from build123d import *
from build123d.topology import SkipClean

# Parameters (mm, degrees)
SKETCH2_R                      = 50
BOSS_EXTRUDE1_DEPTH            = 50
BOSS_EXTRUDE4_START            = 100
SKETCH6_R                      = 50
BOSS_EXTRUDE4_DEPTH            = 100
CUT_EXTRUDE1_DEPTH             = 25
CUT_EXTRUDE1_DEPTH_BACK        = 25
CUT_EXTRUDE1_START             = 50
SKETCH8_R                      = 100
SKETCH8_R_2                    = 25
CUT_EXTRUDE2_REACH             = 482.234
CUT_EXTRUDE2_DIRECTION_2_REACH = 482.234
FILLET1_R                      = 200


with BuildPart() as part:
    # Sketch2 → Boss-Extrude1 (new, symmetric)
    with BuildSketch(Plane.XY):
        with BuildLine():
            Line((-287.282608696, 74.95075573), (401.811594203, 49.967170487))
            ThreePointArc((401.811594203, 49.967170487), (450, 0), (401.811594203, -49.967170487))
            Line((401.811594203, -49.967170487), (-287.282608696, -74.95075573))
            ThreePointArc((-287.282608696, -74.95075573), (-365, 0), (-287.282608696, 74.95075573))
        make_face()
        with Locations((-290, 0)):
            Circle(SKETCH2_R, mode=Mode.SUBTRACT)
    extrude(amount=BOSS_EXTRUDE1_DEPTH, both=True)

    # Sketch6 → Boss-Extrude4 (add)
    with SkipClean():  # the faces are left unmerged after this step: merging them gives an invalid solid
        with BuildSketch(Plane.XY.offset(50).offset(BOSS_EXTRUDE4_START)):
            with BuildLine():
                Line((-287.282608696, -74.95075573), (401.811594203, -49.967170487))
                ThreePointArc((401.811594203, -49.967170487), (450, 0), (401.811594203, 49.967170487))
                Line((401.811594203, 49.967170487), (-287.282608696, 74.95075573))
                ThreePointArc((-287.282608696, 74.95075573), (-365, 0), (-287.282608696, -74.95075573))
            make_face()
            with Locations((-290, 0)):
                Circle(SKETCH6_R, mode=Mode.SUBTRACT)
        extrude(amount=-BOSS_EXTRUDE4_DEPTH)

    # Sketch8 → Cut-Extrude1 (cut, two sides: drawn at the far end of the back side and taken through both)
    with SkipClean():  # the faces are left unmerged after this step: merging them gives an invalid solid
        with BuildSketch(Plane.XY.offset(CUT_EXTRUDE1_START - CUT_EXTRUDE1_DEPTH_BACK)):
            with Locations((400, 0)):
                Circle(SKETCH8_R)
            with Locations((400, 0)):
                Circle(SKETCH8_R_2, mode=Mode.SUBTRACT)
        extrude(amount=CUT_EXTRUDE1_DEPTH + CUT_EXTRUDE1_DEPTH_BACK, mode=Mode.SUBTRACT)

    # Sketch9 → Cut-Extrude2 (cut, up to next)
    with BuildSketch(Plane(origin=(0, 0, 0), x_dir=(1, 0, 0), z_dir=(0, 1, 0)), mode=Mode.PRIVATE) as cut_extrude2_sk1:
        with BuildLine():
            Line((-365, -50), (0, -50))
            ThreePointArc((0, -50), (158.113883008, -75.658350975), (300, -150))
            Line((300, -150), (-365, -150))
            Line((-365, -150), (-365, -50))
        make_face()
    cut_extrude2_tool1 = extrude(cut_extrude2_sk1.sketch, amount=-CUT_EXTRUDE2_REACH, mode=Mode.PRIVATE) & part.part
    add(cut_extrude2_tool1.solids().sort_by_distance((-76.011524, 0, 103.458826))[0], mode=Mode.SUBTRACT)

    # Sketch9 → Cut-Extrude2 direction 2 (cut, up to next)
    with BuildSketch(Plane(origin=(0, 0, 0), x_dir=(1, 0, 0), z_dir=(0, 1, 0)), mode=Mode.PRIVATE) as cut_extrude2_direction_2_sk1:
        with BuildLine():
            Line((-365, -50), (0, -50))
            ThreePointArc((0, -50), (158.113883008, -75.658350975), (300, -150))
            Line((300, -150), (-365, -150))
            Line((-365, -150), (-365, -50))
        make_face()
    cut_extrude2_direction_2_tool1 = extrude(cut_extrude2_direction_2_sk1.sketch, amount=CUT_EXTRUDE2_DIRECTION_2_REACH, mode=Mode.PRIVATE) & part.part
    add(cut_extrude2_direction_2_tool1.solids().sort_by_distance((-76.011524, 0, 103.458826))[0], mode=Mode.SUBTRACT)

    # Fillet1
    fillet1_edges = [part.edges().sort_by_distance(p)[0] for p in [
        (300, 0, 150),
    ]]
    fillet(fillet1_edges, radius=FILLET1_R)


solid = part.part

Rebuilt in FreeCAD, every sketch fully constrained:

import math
import FreeCAD as App
import Part
import Sketcher

V = App.Vector


def edges_at(feature, points):
    """Names of the edges that pass closest to the given points."""
    edges = feature.Shape.Edges
    near = lambda p: min(range(len(edges)), key=lambda i: edges[i].distToShape(Part.Vertex(*p))[0])
    return sorted({f"Edge{near(p) + 1}" for p in points})

doc = App.newDocument("Part")
params = doc.addObject("Spreadsheet::Sheet", "Params")
for row, (alias, value) in enumerate([
    ("sketch1_diameter", "100 mm"),
    ("sketch1_radius", "75 mm"),
    ("pad1_length", "100 mm"),
    ("sketch2_diameter", "100 mm"),
    ("sketch2_radius", "75 mm"),
    ("pad2_length", "100 mm"),
    ("sketch3_diameter", "200 mm"),
    ("sketch3_diameter2", "50 mm"),
    ("pocket1_length", "25 mm"),
    ("pocket1_length2", "25 mm"),
    ("sketch4_radius", "500 mm"),
    ("sketch4_width", "365 mm"),
    ("sketch4_width2", "665 mm"),
    ("sketch5_radius", "500 mm"),
    ("sketch5_width", "365 mm"),
    ("sketch5_width2", "665 mm"),
    ("fillet_radius", "200 mm"),
], start=1):
    params.set(f"A{row}", alias)
    params.set(f"B{row}", "=" + value)
    params.setAlias(f"B{row}", alias)

body = doc.addObject("PartDesign::Body", "Body")

sketch1 = doc.addObject("Sketcher::SketchObject", "Sketch")
body.addObject(sketch1)
sketch1.AttachmentSupport = (doc.XY_Plane, [""])
sketch1.MapMode = "FlatFace"
sketch1.addGeometry(Part.LineSegment(V(402, 50, 0), V(-287, 75, 0)), False)
sketch1.addGeometry(Part.ArcOfCircle(Part.Circle(V(-290, 0, 0), V(0, 0, 1), 75), math.radians(88), math.radians(272)), False)
sketch1.addGeometry(Part.LineSegment(V(-287, -75, 0), V(402, -50, 0)), False)
sketch1.addGeometry(Part.ArcOfCircle(Part.Circle(V(400, 0, 0), V(0, 0, 1), 50), math.radians(-88), math.radians(88)), False)
sketch1.addGeometry(Part.Circle(V(-290, 0, 0), V(0, 0, 1), 50), False)
sketch1.addConstraint(Sketcher.Constraint("Tangent", 0, 2, 1, 1))
sketch1.addConstraint(Sketcher.Constraint("Tangent", 1, 2, 2, 1))
sketch1.addConstraint(Sketcher.Constraint("Tangent", 2, 2, 3, 1))
sketch1.addConstraint(Sketcher.Constraint("Tangent", 3, 2, 0, 1))
sketch1.addConstraint(Sketcher.Constraint("Coincident", 4, 3, 1, 3))
sketch1.addConstraint(Sketcher.Constraint("Equal", 3, 4))
sketch1.addConstraint(Sketcher.Constraint("Symmetric", 0, 2, 1, 2, -1))
sketch1.addConstraint(Sketcher.Constraint("Diameter", 4, 100.0))
sketch1.addConstraint(Sketcher.Constraint("Radius", 1, 75.0))
sketch1.addConstraint(Sketcher.Constraint("DistanceX", 1, 3, -1, 1, 290.0))
sketch1.addConstraint(Sketcher.Constraint("DistanceX", -1, 1, 3, 3, 400.0))
sketch1.setExpression("Constraints[7]", "Params.sketch1_diameter")
sketch1.setExpression("Constraints[8]", "Params.sketch1_radius")
pad1 = doc.addObject("PartDesign::Pad", "Pad")
body.addObject(pad1)
pad1.Profile = sketch1
pad1.setExpression("Length", "Params.pad1_length")
pad1.Midplane = True

sketch2 = doc.addObject("Sketcher::SketchObject", "Sketch001")
body.addObject(sketch2)
sketch2.AttachmentSupport = (doc.XY_Plane, [""])
sketch2.MapMode = "FlatFace"
sketch2.AttachmentOffset = App.Placement(V(0, 0, 150), App.Rotation())
sketch2.addGeometry(Part.LineSegment(V(-287, -75, 0), V(402, -50, 0)), False)
sketch2.addGeometry(Part.ArcOfCircle(Part.Circle(V(400, 0, 0), V(0, 0, 1), 50), math.radians(-88), math.radians(88)), False)
sketch2.addGeometry(Part.LineSegment(V(402, 50, 0), V(-287, 75, 0)), False)
sketch2.addGeometry(Part.ArcOfCircle(Part.Circle(V(-290, 0, 0), V(0, 0, 1), 75), math.radians(88), math.radians(272)), False)
sketch2.addGeometry(Part.Circle(V(-290, 0, 0), V(0, 0, 1), 50), False)
sketch2.addConstraint(Sketcher.Constraint("Tangent", 0, 2, 1, 1))
sketch2.addConstraint(Sketcher.Constraint("Tangent", 1, 2, 2, 1))
sketch2.addConstraint(Sketcher.Constraint("Tangent", 2, 2, 3, 1))
sketch2.addConstraint(Sketcher.Constraint("Tangent", 3, 2, 0, 1))
sketch2.addConstraint(Sketcher.Constraint("Coincident", 4, 3, 3, 3))
sketch2.addConstraint(Sketcher.Constraint("Equal", 1, 4))
sketch2.addConstraint(Sketcher.Constraint("Symmetric", 0, 2, 1, 2, -1))
sketch2.addConstraint(Sketcher.Constraint("Diameter", 4, 100.0))
sketch2.addConstraint(Sketcher.Constraint("Radius", 3, 75.0))
sketch2.addConstraint(Sketcher.Constraint("DistanceX", -1, 1, 1, 3, 400.0))
sketch2.addConstraint(Sketcher.Constraint("DistanceX", 3, 3, -1, 1, 290.0))
sketch2.setExpression("Constraints[7]", "Params.sketch2_diameter")
sketch2.setExpression("Constraints[8]", "Params.sketch2_radius")
pad2 = doc.addObject("PartDesign::Pad", "Pad001")
body.addObject(pad2)
pad2.Profile = sketch2
pad2.setExpression("Length", "Params.pad2_length")
pad2.Reversed = True

sketch3 = doc.addObject("Sketcher::SketchObject", "Sketch002")
body.addObject(sketch3)
sketch3.AttachmentSupport = (doc.XY_Plane, [""])
sketch3.MapMode = "FlatFace"
sketch3.AttachmentOffset = App.Placement(V(0, 0, 50), App.Rotation())
sketch3.addGeometry(Part.Circle(V(400, 0, 0), V(0, 0, 1), 100), False)
sketch3.addGeometry(Part.Circle(V(400, 0, 0), V(0, 0, 1), 25), False)
sketch3.addConstraint(Sketcher.Constraint("Coincident", 1, 3, 0, 3))
sketch3.addConstraint(Sketcher.Constraint("PointOnObject", 0, 3, -1))
sketch3.addConstraint(Sketcher.Constraint("Diameter", 0, 200.0))
sketch3.addConstraint(Sketcher.Constraint("Diameter", 1, 50.0))
sketch3.addConstraint(Sketcher.Constraint("DistanceX", -1, 1, 0, 3, 400.0))
sketch3.setExpression("Constraints[2]", "Params.sketch3_diameter")
sketch3.setExpression("Constraints[3]", "Params.sketch3_diameter2")
pocket1 = doc.addObject("PartDesign::Pocket", "Pocket")
body.addObject(pocket1)
pocket1.Profile = sketch3
pocket1.Type = "TwoLengths"
pocket1.setExpression("Length", "Params.pocket1_length")
pocket1.setExpression("Length2", "Params.pocket1_length2")
pocket1.Reversed = True

sketch4 = doc.addObject("Sketcher::SketchObject", "Sketch003")
body.addObject(sketch4)
sketch4.AttachmentSupport = (doc.XZ_Plane, [""])
sketch4.MapMode = "FlatFace"
sketch4.addGeometry(Part.LineSegment(V(0, 50, 0), V(-365, 50, 0)), False)
sketch4.addGeometry(Part.LineSegment(V(-365, 50, 0), V(-365, 150, 0)), False)
sketch4.addGeometry(Part.LineSegment(V(-365, 150, 0), V(300, 150, 0)), False)
sketch4.addGeometry(Part.ArcOfCircle(Part.Circle(V(0, 550, 0), V(0, 0, 1), 500), math.radians(-90), math.radians(-53)), False)
sketch4.addConstraint(Sketcher.Constraint("Coincident", 0, 2, 1, 1))
sketch4.addConstraint(Sketcher.Constraint("Coincident", 1, 2, 2, 1))
sketch4.addConstraint(Sketcher.Constraint("Coincident", 2, 2, 3, 2))
sketch4.addConstraint(Sketcher.Constraint("Tangent", 3, 1, 0, 1))
sketch4.addConstraint(Sketcher.Constraint("Horizontal", 0))
sketch4.addConstraint(Sketcher.Constraint("Vertical", 1))
sketch4.addConstraint(Sketcher.Constraint("Horizontal", 2))
sketch4.addConstraint(Sketcher.Constraint("PointOnObject", 3, 3, -2))
sketch4.addConstraint(Sketcher.Constraint("Radius", 3, 500.0))
sketch4.addConstraint(Sketcher.Constraint("DistanceX", 0, 2, 0, 1, 365.0))
sketch4.addConstraint(Sketcher.Constraint("DistanceX", 2, 1, 2, 2, 665.0))
sketch4.addConstraint(Sketcher.Constraint("DistanceY", -1, 1, 3, 3, 550.0))
sketch4.setExpression("Constraints[8]", "Params.sketch4_radius")
sketch4.setExpression("Constraints[9]", "Params.sketch4_width")
sketch4.setExpression("Constraints[10]", "Params.sketch4_width2")
pocket2 = doc.addObject("PartDesign::Pocket", "Pocket001")
body.addObject(pocket2)
pocket2.Profile = sketch4
pocket2.Type = "UpToFirst"
pocket2.Reversed = True

sketch5 = doc.addObject("Sketcher::SketchObject", "Sketch004")
body.addObject(sketch5)
sketch5.AttachmentSupport = (doc.XZ_Plane, [""])
sketch5.MapMode = "FlatFace"
sketch5.addGeometry(Part.LineSegment(V(0, 50, 0), V(-365, 50, 0)), False)
sketch5.addGeometry(Part.LineSegment(V(-365, 50, 0), V(-365, 150, 0)), False)
sketch5.addGeometry(Part.LineSegment(V(-365, 150, 0), V(300, 150, 0)), False)
sketch5.addGeometry(Part.ArcOfCircle(Part.Circle(V(0, 550, 0), V(0, 0, 1), 500), math.radians(-90), math.radians(-53)), False)
sketch5.addConstraint(Sketcher.Constraint("Coincident", 0, 2, 1, 1))
sketch5.addConstraint(Sketcher.Constraint("Coincident", 1, 2, 2, 1))
sketch5.addConstraint(Sketcher.Constraint("Coincident", 2, 2, 3, 2))
sketch5.addConstraint(Sketcher.Constraint("Tangent", 3, 1, 0, 1))
sketch5.addConstraint(Sketcher.Constraint("Horizontal", 0))
sketch5.addConstraint(Sketcher.Constraint("Vertical", 1))
sketch5.addConstraint(Sketcher.Constraint("Horizontal", 2))
sketch5.addConstraint(Sketcher.Constraint("PointOnObject", 3, 3, -2))
sketch5.addConstraint(Sketcher.Constraint("Radius", 3, 500.0))
sketch5.addConstraint(Sketcher.Constraint("DistanceX", 0, 2, 0, 1, 365.0))
sketch5.addConstraint(Sketcher.Constraint("DistanceX", 2, 1, 2, 2, 665.0))
sketch5.addConstraint(Sketcher.Constraint("DistanceY", -1, 1, 3, 3, 550.0))
sketch5.setExpression("Constraints[8]", "Params.sketch5_radius")
sketch5.setExpression("Constraints[9]", "Params.sketch5_width")
sketch5.setExpression("Constraints[10]", "Params.sketch5_width2")
pocket3 = doc.addObject("PartDesign::Pocket", "Pocket002")
body.addObject(pocket3)
pocket3.Profile = sketch5
pocket3.Type = "UpToFirst"
doc.recompute()

fillet = doc.addObject("PartDesign::Fillet", "Fillet")
body.addObject(fillet)
fillet.Base = (pocket3, edges_at(pocket3, [(300, 0, 150)]))
fillet.setExpression("Radius", "Params.fillet_radius")

doc.recompute()
